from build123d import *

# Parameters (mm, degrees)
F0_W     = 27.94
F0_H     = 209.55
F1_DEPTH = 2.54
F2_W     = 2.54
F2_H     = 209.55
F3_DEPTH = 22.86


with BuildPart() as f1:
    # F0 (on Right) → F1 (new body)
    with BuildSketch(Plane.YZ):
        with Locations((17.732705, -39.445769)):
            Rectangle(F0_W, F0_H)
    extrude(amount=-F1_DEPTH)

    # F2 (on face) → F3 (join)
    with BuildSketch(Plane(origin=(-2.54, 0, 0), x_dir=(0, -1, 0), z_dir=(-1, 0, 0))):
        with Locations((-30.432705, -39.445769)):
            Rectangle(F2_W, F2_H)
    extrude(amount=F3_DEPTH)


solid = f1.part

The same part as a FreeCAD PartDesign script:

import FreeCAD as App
import Part
import Sketcher

V = App.Vector
Q = App.Units.Quantity

doc = App.newDocument("Part")
body = doc.addObject("PartDesign::Body", "Body")

# Sketch on YZ plane
sketch1 = doc.addObject("Sketcher::SketchObject", "Sketch")
body.addObject(sketch1)
sketch1.AttachmentSupport = (doc.YZ_Plane, [""])
sketch1.MapMode = "FlatFace"
sketch1.addGeometry([
    Part.LineSegment(V(3.762705, 65.329231, 0), V(3.762705, -144.220769, 0)),
    Part.LineSegment(V(3.762705, -144.220769, 0), V(31.702705, -144.220769, 0)),
    Part.LineSegment(V(31.702705, -144.220769, 0), V(31.702705, 65.329231, 0)),
    Part.LineSegment(V(31.702705, 65.329231, 0), V(3.762705, 65.329231, 0)),
], False)
sketch1.addConstraint([
    Sketcher.Constraint("Coincident", 0, 2, 1, 1),
    Sketcher.Constraint("Coincident", 1, 2, 2, 1),
    Sketcher.Constraint("Coincident", 2, 2, 3, 1),
    Sketcher.Constraint("Coincident", 3, 2, 0, 1),
    Sketcher.Constraint("Vertical", 0),
    Sketcher.Constraint("Horizontal", 1),
    Sketcher.Constraint("Vertical", 2),
    Sketcher.Constraint("Horizontal", 3),
    Sketcher.Constraint("DistanceX", 1, 1, 1, 2, Q("1.1 in")),
    Sketcher.Constraint("DistanceY", 0, 2, 0, 1, Q("8.25 in")),
    Sketcher.Constraint("DistanceY", 0, 2, -1, 1, 144.220769),
    Sketcher.Constraint("DistanceX", -1, 1, 0, 2, 3.762705),
])
pad1 = doc.addObject("PartDesign::Pad", "Pad")
body.addObject(pad1)
pad1.Profile = sketch1
pad1.Length = Q("0.1 in")
pad1.Reversed = True

# Sketch on YZ plane
sketch2 = doc.addObject("Sketcher::SketchObject", "Sketch001")
body.addObject(sketch2)
sketch2.AttachmentSupport = (doc.YZ_Plane, [""])
sketch2.MapMode = "FlatFace"
sketch2.AttachmentOffset = App.Placement(V(0, 0, -0.1 * 25.4), App.Rotation())
sketch2.addGeometry([
    Part.LineSegment(V(31.702705, 65.329231, 0), V(31.702705, -144.220769, 0)),
    Part.LineSegment(V(31.702705, -144.220769, 0), V(29.162705, -144.220769, 0)),
    Part.LineSegment(V(29.162705, -144.220769, 0), V(29.162705, 65.329231, 0)),
    Part.LineSegment(V(29.162705, 65.329231, 0), V(31.702705, 65.329231, 0)),
], False)
sketch2.addConstraint([
    Sketcher.Constraint("Coincident", 0, 2, 1, 1),
    Sketcher.Constraint("Coincident", 1, 2, 2, 1),
    Sketcher.Constraint("Coincident", 2, 2, 3, 1),
    Sketcher.Constraint("Coincident", 3, 2, 0, 1),
    Sketcher.Constraint("Vertical", 0),
    Sketcher.Constraint("Horizontal", 1),
    Sketcher.Constraint("Vertical", 2),
    Sketcher.Constraint("Horizontal", 3),
    Sketcher.Constraint("DistanceX", 1, 2, 1, 1, Q("0.1 in")),
    Sketcher.Constraint("DistanceY", 0, 2, 0, 1, Q("8.25 in")),
    Sketcher.Constraint("DistanceY", 0, 2, -1, 1, 144.220769),
    Sketcher.Constraint("DistanceX", -1, 1, 0, 2, 31.702705),
])
pad2 = doc.addObject("PartDesign::Pad", "Pad001")
body.addObject(pad2)
pad2.Profile = sketch2
pad2.Length = Q("0.9 in")
pad2.Reversed = True

doc.recompute()
